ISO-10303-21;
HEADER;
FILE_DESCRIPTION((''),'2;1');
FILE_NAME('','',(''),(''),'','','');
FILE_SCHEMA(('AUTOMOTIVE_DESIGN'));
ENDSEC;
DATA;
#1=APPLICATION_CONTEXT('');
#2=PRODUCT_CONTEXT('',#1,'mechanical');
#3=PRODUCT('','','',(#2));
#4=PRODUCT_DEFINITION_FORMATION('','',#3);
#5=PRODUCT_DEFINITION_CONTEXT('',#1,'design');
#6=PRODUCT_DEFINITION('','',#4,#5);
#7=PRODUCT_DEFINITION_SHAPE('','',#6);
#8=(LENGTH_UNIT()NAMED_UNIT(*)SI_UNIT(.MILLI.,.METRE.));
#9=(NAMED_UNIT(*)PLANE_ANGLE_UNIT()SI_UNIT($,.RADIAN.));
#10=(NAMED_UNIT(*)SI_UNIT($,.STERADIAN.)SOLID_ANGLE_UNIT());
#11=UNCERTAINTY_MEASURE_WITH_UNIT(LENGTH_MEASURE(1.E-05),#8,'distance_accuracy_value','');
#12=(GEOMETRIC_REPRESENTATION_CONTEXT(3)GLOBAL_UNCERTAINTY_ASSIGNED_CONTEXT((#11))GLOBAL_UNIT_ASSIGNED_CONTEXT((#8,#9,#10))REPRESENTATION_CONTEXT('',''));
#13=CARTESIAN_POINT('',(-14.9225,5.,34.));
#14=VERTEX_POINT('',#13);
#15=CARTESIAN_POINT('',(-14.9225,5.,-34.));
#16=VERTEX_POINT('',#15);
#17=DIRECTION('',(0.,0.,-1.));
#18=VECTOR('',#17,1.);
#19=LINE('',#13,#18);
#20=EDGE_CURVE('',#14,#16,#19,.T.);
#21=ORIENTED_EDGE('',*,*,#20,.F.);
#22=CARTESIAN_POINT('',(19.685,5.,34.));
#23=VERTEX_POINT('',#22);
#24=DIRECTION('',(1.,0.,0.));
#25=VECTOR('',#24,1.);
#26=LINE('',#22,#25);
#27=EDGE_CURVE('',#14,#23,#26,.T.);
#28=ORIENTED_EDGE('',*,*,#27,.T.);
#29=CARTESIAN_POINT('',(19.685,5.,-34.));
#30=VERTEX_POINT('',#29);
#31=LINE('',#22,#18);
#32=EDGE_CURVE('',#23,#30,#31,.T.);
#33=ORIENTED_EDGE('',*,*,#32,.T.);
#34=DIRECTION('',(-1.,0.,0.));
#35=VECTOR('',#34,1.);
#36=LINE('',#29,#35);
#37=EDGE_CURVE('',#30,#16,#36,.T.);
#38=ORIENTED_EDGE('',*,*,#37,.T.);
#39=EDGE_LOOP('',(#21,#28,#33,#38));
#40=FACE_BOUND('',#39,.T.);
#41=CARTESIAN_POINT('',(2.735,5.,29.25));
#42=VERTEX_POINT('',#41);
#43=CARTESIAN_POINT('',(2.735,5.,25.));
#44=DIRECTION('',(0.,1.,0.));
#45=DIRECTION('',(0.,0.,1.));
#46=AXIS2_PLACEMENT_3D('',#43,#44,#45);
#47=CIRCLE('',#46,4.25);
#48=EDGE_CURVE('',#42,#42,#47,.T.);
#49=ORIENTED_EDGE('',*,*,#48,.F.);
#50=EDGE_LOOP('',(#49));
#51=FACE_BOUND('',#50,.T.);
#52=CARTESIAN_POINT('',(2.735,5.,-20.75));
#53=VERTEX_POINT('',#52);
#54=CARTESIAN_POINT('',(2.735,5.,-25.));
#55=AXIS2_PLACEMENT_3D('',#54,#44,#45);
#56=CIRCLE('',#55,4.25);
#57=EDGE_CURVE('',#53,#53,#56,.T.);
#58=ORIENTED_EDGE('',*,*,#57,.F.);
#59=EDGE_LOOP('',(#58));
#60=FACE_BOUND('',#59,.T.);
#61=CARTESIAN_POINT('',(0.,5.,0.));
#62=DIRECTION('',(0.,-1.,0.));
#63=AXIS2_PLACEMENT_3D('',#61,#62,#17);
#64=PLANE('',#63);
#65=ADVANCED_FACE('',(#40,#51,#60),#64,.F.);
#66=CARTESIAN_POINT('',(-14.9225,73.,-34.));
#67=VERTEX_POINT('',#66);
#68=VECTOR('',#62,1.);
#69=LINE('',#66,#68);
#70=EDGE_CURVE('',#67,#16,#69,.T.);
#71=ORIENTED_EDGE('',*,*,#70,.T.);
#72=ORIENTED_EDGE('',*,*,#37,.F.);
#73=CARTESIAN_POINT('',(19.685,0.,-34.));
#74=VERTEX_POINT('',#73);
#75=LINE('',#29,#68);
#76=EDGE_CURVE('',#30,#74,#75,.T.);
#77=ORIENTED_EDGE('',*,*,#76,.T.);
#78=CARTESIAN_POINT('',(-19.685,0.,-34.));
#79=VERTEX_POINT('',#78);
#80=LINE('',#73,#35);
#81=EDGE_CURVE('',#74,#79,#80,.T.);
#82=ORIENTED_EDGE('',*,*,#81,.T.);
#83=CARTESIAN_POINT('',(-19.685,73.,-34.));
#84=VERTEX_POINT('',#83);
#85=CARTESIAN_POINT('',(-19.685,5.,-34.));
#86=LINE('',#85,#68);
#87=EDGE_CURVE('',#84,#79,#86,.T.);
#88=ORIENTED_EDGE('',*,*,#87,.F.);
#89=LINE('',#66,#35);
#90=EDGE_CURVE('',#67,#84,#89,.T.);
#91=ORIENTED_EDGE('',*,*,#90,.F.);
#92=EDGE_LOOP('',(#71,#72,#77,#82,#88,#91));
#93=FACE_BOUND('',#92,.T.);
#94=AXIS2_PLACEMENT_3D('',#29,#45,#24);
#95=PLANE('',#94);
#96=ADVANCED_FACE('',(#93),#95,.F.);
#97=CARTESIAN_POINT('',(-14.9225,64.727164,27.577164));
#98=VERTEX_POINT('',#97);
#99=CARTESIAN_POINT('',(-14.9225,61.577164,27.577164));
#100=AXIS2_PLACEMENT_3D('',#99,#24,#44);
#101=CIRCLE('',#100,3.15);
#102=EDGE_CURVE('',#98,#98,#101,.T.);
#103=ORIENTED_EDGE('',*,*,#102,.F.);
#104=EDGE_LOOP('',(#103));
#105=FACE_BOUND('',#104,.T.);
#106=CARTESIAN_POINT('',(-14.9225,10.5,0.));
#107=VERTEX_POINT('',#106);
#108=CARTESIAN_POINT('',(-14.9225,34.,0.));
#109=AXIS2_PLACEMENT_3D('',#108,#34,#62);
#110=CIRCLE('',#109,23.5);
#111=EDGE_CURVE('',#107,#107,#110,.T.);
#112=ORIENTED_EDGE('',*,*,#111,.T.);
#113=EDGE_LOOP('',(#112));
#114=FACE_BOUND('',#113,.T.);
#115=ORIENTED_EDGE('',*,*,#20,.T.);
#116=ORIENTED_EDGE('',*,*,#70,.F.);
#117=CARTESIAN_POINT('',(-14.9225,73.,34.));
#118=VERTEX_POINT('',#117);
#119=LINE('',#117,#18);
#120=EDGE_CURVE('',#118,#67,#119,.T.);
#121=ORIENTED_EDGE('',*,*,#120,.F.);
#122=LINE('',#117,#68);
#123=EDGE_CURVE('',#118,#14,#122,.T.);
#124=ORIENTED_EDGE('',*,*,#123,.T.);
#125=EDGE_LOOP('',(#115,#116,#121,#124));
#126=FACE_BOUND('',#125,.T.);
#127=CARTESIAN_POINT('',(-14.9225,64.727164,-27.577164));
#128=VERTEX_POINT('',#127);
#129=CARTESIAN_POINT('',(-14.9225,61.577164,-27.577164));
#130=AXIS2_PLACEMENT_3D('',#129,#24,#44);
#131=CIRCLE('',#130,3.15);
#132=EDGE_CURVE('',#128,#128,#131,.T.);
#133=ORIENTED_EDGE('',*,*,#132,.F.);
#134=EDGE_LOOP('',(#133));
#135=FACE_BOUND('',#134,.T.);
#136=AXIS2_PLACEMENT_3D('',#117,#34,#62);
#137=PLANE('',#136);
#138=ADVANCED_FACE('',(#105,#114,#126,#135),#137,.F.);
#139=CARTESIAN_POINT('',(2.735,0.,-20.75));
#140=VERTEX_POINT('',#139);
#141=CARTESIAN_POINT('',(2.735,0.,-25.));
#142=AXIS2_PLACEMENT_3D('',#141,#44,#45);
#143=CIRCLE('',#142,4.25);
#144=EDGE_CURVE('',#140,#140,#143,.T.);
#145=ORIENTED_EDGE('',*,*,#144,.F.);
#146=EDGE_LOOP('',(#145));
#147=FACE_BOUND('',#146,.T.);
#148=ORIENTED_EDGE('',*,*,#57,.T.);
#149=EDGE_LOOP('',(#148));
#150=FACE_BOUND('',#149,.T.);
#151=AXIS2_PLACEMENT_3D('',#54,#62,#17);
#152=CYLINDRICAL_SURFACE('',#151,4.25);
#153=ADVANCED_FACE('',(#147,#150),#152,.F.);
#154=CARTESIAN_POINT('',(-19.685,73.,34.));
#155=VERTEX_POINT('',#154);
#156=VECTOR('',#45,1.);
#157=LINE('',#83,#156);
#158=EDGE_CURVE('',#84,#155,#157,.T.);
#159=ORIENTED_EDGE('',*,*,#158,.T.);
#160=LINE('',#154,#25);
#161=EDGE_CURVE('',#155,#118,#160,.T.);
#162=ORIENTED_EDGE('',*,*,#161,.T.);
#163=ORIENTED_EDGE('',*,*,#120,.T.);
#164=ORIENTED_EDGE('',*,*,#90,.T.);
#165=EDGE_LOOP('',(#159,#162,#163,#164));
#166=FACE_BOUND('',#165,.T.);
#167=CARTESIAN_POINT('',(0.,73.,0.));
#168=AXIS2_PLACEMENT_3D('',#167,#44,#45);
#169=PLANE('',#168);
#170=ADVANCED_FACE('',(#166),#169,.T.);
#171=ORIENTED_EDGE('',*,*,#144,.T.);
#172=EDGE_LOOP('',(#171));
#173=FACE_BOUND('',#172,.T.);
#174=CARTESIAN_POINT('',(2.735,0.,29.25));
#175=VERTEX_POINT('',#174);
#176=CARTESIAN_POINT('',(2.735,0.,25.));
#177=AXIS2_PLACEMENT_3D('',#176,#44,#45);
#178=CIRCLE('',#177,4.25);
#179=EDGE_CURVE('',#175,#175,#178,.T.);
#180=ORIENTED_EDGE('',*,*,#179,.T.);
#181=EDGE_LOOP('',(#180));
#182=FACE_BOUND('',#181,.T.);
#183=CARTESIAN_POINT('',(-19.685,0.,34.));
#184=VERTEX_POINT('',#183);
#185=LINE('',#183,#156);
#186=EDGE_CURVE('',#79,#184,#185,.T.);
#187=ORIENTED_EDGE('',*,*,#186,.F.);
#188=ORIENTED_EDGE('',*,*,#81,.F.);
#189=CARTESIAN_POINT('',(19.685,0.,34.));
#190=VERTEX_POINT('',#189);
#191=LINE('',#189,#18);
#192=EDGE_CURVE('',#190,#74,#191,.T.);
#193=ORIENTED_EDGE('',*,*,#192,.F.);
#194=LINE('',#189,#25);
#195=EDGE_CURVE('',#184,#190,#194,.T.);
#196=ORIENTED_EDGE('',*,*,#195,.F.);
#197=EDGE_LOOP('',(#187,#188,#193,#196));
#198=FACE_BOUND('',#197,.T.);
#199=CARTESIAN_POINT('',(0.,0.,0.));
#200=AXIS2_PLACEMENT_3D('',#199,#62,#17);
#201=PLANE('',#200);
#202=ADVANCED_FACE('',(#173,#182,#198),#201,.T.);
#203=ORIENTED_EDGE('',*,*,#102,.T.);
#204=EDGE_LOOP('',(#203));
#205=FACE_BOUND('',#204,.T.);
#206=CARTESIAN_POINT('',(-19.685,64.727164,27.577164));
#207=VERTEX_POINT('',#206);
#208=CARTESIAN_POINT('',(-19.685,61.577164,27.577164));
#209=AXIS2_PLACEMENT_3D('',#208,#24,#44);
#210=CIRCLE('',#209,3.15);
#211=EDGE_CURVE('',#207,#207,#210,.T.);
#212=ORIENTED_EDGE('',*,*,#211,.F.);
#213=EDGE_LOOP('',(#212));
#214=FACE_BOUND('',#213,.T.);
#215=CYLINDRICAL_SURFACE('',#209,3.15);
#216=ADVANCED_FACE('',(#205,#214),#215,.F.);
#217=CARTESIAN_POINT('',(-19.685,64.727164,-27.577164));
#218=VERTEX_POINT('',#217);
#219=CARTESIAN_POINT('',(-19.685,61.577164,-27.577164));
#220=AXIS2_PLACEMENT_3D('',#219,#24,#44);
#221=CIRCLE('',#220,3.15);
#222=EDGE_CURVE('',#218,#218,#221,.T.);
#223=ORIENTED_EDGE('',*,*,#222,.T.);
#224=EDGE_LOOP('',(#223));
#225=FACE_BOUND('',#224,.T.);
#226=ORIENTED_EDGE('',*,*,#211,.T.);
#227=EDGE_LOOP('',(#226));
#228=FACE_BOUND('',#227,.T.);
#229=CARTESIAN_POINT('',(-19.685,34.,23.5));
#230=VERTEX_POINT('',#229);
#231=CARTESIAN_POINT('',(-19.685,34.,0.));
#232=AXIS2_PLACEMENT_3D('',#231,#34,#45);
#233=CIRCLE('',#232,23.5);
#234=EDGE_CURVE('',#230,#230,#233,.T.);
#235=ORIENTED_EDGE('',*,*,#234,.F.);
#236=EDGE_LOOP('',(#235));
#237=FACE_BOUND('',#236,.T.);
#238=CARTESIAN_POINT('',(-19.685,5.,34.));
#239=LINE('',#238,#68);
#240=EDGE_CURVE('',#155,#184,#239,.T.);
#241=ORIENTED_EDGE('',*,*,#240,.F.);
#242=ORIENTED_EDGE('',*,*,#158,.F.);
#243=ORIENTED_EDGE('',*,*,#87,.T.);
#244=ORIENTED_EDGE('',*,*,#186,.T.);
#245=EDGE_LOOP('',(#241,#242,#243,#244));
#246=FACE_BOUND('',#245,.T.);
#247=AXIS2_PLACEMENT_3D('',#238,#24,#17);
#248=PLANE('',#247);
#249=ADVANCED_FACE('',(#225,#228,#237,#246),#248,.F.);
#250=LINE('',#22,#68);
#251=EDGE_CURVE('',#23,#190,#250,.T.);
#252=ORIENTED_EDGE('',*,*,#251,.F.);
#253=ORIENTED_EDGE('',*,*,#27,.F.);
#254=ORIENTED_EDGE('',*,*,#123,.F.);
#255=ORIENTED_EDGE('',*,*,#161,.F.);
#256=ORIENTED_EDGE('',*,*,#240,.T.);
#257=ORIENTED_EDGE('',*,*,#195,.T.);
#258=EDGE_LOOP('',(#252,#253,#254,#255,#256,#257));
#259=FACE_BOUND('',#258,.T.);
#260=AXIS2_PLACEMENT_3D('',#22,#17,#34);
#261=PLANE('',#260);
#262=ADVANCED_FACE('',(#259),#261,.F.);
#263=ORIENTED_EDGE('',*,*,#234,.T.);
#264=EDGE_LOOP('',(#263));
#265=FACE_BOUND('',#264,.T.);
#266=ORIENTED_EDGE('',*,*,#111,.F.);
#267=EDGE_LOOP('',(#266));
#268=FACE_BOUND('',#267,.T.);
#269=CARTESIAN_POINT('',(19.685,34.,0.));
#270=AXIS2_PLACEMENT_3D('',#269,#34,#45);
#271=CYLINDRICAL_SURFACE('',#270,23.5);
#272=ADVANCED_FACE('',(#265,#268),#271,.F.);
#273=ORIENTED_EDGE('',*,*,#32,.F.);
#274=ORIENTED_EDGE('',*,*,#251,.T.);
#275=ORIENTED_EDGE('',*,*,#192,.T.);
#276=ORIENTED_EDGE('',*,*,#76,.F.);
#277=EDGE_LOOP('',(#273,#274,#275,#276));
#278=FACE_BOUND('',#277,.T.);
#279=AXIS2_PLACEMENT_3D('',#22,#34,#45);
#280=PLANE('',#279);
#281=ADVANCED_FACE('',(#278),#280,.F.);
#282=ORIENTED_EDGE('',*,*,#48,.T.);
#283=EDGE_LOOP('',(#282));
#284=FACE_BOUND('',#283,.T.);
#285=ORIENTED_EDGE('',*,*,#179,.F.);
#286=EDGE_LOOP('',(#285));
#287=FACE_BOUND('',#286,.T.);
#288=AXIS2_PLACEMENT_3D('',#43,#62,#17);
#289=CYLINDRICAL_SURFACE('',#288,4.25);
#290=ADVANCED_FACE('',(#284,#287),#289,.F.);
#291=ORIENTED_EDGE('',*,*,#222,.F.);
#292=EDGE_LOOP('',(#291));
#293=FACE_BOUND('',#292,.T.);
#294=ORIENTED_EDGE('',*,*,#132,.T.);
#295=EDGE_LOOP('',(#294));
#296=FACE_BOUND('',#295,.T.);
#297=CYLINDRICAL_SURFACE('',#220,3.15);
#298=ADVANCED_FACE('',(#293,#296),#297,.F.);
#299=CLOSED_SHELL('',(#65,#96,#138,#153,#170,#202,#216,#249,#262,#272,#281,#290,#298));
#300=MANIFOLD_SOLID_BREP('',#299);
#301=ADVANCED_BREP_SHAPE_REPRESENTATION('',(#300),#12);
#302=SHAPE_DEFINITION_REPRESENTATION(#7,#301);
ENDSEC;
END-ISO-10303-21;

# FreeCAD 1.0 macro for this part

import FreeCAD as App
import Part
import Sketcher

V = App.Vector
Q = App.Units.Quantity

doc = App.newDocument("Part")
body = doc.addObject("PartDesign::Body", "Body")

sketch1 = body.newObject("Sketcher::SketchObject", "Sketch")
sketch1.AttachmentSupport = (doc.getObject("XZ_Plane"), [""])
sketch1.MapMode = "FlatFace"
sketch1.addGeometry(Part.LineSegment(V(-19.7, 34, 0), V(19.7, 34, 0)), False)
sketch1.addGeometry(Part.LineSegment(V(19.7, 34, 0), V(19.7, -34, 0)), False)
sketch1.addGeometry(Part.LineSegment(V(19.7, -34, 0), V(-19.7, -34, 0)), False)
sketch1.addGeometry(Part.LineSegment(V(-19.7, -34, 0), V(-19.7, 34, 0)), False)
sketch1.addGeometry(Part.Circle(V(2.7, 25, 0), V(0, 0, 1), 4.2), False)
sketch1.addGeometry(Part.Circle(V(2.7, -25, 0), V(0, 0, 1), 4.2), False)
sketch1.addConstraint(Sketcher.Constraint("Coincident", 0, 2, 1, 1))
sketch1.addConstraint(Sketcher.Constraint("Coincident", 1, 2, 2, 1))
sketch1.addConstraint(Sketcher.Constraint("Coincident", 2, 2, 3, 1))
sketch1.addConstraint(Sketcher.Constraint("Coincident", 3, 2, 0, 1))
sketch1.addConstraint(Sketcher.Constraint("Horizontal", 0))
sketch1.addConstraint(Sketcher.Constraint("Vertical", 1))
sketch1.addConstraint(Sketcher.Constraint("Horizontal", 2))
sketch1.addConstraint(Sketcher.Constraint("Vertical", 3))
sketch1.addConstraint(Sketcher.Constraint("Equal", 4, 5))
sketch1.addConstraint(Sketcher.Constraint("Symmetric", 0, 2, 2, 2, -1, 1))
sketch1.addConstraint(Sketcher.Constraint("Symmetric", 4, 3, 5, 3, -1))
sketch1.addConstraint(Sketcher.Constraint("Diameter", 4, Q("8.5 mm")))
sketch1.addConstraint(Sketcher.Constraint("DistanceY", 1, 2, 1, 1, Q("68 mm")))
sketch1.addConstraint(Sketcher.Constraint("DistanceY", -1, 1, 4, 3, Q("25 mm")))
sketch1.addConstraint(Sketcher.Constraint("DistanceX", 0, 1, 0, 2, Q("39.37 mm")))
sketch1.addConstraint(Sketcher.Constraint("DistanceX", 4, 3, 0, 2, Q("16.95 mm")))
pad1 = body.newObject("PartDesign::Pad", "Pad")
pad1.Profile = sketch1
pad1.Length = 5
pad1.Reversed = True

sketch2 = body.newObject("Sketcher::SketchObject", "Sketch001")
sketch2.AttachmentSupport = (doc.getObject("XZ_Plane"), [""])
sketch2.MapMode = "FlatFace"
sketch2.AttachmentOffset = App.Placement(V(0, 0, -5), App.Rotation())
sketch2.addGeometry(Part.LineSegment(V(-19.7, 34, 0), V(-14.9, 34, 0)), False)
sketch2.addGeometry(Part.LineSegment(V(-14.9, 34, 0), V(-14.9, -34, 0)), False)
sketch2.addGeometry(Part.LineSegment(V(-14.9, -34, 0), V(-19.7, -34, 0)), False)
sketch2.addGeometry(Part.LineSegment(V(-19.7, -34, 0), V(-19.7, 34, 0)), False)
sketch2.addConstraint(Sketcher.Constraint("Coincident", 0, 2, 1, 1))
sketch2.addConstraint(Sketcher.Constraint("Coincident", 1, 2, 2, 1))
sketch2.addConstraint(Sketcher.Constraint("Coincident", 2, 2, 3, 1))
sketch2.addConstraint(Sketcher.Constraint("Coincident", 3, 2, 0, 1))
sketch2.addConstraint(Sketcher.Constraint("Horizontal", 0))
sketch2.addConstraint(Sketcher.Constraint("Vertical", 1))
sketch2.addConstraint(Sketcher.Constraint("Horizontal", 2))
sketch2.addConstraint(Sketcher.Constraint("Vertical", 3))
sketch2.addConstraint(Sketcher.Constraint("DistanceY", 1, 2, 1, 1, Q("68 mm")))
sketch2.addConstraint(Sketcher.Constraint("DistanceY", -1, 1, 0, 2, Q("34 mm")))
sketch2.addConstraint(Sketcher.Constraint("DistanceX", 0, 1, 0, 2, Q("4.7625 mm")))
sketch2.addConstraint(Sketcher.Constraint("DistanceX", 2, 2, -1, 1, Q("19.685 mm")))
pad2 = body.newObject("PartDesign::Pad", "Pad001")
pad2.Profile = sketch2
pad2.Length = 68
pad2.Reversed = True

sketch3 = body.newObject("Sketcher::SketchObject", "Sketch002")
sketch3.AttachmentSupport = (doc.getObject("YZ_Plane"), [""])
sketch3.MapMode = "FlatFace"
sketch3.AttachmentOffset = App.Placement(V(0, 0, -14.9225), App.Rotation())
sketch3.addGeometry(Part.Circle(V(61.6, 27.6, 0), V(0, 0, 1), 3.1), False)
sketch3.addGeometry(Part.Circle(V(61.6, -27.6, 0), V(0, 0, 1), 3.1), False)
sketch3.addConstraint(Sketcher.Constraint("Equal", 0, 1))
sketch3.addConstraint(Sketcher.Constraint("Symmetric", 0, 3, 1, 3, -1))
sketch3.addConstraint(Sketcher.Constraint("Diameter", 0, Q("6.3 mm")))
sketch3.addConstraint(Sketcher.Constraint("DistanceY", 1, 3, 0, 3, Q("55.154329 mm")))
sketch3.addConstraint(Sketcher.Constraint("DistanceX", -1, 1, 0, 3, Q("61.577164 mm")))
pocket1 = body.newObject("PartDesign::Pocket", "Pocket")
pocket1.Profile = sketch3
pocket1.Type = "ThroughAll"

sketch4 = body.newObject("Sketcher::SketchObject", "Sketch003")
sketch4.AttachmentSupport = (doc.getObject("YZ_Plane"), [""])
sketch4.MapMode = "FlatFace"
sketch4.AttachmentOffset = App.Placement(V(0, 0, -19.685), App.Rotation())
sketch4.addGeometry(Part.Circle(V(34, 0, 0), V(0, 0, 1), 24), False)
sketch4.addConstraint(Sketcher.Constraint("PointOnObject", 0, 3, -1))
sketch4.addConstraint(Sketcher.Constraint("Diameter", 0, Q("47 mm")))
sketch4.addConstraint(Sketcher.Constraint("DistanceX", -1, 1, 0, 3, Q("34 mm")))
pocket2 = body.newObject("PartDesign::Pocket", "Pocket001")
pocket2.Profile = sketch4
pocket2.Type = "ThroughAll"
pocket2.Reversed = True

doc.recompute()
